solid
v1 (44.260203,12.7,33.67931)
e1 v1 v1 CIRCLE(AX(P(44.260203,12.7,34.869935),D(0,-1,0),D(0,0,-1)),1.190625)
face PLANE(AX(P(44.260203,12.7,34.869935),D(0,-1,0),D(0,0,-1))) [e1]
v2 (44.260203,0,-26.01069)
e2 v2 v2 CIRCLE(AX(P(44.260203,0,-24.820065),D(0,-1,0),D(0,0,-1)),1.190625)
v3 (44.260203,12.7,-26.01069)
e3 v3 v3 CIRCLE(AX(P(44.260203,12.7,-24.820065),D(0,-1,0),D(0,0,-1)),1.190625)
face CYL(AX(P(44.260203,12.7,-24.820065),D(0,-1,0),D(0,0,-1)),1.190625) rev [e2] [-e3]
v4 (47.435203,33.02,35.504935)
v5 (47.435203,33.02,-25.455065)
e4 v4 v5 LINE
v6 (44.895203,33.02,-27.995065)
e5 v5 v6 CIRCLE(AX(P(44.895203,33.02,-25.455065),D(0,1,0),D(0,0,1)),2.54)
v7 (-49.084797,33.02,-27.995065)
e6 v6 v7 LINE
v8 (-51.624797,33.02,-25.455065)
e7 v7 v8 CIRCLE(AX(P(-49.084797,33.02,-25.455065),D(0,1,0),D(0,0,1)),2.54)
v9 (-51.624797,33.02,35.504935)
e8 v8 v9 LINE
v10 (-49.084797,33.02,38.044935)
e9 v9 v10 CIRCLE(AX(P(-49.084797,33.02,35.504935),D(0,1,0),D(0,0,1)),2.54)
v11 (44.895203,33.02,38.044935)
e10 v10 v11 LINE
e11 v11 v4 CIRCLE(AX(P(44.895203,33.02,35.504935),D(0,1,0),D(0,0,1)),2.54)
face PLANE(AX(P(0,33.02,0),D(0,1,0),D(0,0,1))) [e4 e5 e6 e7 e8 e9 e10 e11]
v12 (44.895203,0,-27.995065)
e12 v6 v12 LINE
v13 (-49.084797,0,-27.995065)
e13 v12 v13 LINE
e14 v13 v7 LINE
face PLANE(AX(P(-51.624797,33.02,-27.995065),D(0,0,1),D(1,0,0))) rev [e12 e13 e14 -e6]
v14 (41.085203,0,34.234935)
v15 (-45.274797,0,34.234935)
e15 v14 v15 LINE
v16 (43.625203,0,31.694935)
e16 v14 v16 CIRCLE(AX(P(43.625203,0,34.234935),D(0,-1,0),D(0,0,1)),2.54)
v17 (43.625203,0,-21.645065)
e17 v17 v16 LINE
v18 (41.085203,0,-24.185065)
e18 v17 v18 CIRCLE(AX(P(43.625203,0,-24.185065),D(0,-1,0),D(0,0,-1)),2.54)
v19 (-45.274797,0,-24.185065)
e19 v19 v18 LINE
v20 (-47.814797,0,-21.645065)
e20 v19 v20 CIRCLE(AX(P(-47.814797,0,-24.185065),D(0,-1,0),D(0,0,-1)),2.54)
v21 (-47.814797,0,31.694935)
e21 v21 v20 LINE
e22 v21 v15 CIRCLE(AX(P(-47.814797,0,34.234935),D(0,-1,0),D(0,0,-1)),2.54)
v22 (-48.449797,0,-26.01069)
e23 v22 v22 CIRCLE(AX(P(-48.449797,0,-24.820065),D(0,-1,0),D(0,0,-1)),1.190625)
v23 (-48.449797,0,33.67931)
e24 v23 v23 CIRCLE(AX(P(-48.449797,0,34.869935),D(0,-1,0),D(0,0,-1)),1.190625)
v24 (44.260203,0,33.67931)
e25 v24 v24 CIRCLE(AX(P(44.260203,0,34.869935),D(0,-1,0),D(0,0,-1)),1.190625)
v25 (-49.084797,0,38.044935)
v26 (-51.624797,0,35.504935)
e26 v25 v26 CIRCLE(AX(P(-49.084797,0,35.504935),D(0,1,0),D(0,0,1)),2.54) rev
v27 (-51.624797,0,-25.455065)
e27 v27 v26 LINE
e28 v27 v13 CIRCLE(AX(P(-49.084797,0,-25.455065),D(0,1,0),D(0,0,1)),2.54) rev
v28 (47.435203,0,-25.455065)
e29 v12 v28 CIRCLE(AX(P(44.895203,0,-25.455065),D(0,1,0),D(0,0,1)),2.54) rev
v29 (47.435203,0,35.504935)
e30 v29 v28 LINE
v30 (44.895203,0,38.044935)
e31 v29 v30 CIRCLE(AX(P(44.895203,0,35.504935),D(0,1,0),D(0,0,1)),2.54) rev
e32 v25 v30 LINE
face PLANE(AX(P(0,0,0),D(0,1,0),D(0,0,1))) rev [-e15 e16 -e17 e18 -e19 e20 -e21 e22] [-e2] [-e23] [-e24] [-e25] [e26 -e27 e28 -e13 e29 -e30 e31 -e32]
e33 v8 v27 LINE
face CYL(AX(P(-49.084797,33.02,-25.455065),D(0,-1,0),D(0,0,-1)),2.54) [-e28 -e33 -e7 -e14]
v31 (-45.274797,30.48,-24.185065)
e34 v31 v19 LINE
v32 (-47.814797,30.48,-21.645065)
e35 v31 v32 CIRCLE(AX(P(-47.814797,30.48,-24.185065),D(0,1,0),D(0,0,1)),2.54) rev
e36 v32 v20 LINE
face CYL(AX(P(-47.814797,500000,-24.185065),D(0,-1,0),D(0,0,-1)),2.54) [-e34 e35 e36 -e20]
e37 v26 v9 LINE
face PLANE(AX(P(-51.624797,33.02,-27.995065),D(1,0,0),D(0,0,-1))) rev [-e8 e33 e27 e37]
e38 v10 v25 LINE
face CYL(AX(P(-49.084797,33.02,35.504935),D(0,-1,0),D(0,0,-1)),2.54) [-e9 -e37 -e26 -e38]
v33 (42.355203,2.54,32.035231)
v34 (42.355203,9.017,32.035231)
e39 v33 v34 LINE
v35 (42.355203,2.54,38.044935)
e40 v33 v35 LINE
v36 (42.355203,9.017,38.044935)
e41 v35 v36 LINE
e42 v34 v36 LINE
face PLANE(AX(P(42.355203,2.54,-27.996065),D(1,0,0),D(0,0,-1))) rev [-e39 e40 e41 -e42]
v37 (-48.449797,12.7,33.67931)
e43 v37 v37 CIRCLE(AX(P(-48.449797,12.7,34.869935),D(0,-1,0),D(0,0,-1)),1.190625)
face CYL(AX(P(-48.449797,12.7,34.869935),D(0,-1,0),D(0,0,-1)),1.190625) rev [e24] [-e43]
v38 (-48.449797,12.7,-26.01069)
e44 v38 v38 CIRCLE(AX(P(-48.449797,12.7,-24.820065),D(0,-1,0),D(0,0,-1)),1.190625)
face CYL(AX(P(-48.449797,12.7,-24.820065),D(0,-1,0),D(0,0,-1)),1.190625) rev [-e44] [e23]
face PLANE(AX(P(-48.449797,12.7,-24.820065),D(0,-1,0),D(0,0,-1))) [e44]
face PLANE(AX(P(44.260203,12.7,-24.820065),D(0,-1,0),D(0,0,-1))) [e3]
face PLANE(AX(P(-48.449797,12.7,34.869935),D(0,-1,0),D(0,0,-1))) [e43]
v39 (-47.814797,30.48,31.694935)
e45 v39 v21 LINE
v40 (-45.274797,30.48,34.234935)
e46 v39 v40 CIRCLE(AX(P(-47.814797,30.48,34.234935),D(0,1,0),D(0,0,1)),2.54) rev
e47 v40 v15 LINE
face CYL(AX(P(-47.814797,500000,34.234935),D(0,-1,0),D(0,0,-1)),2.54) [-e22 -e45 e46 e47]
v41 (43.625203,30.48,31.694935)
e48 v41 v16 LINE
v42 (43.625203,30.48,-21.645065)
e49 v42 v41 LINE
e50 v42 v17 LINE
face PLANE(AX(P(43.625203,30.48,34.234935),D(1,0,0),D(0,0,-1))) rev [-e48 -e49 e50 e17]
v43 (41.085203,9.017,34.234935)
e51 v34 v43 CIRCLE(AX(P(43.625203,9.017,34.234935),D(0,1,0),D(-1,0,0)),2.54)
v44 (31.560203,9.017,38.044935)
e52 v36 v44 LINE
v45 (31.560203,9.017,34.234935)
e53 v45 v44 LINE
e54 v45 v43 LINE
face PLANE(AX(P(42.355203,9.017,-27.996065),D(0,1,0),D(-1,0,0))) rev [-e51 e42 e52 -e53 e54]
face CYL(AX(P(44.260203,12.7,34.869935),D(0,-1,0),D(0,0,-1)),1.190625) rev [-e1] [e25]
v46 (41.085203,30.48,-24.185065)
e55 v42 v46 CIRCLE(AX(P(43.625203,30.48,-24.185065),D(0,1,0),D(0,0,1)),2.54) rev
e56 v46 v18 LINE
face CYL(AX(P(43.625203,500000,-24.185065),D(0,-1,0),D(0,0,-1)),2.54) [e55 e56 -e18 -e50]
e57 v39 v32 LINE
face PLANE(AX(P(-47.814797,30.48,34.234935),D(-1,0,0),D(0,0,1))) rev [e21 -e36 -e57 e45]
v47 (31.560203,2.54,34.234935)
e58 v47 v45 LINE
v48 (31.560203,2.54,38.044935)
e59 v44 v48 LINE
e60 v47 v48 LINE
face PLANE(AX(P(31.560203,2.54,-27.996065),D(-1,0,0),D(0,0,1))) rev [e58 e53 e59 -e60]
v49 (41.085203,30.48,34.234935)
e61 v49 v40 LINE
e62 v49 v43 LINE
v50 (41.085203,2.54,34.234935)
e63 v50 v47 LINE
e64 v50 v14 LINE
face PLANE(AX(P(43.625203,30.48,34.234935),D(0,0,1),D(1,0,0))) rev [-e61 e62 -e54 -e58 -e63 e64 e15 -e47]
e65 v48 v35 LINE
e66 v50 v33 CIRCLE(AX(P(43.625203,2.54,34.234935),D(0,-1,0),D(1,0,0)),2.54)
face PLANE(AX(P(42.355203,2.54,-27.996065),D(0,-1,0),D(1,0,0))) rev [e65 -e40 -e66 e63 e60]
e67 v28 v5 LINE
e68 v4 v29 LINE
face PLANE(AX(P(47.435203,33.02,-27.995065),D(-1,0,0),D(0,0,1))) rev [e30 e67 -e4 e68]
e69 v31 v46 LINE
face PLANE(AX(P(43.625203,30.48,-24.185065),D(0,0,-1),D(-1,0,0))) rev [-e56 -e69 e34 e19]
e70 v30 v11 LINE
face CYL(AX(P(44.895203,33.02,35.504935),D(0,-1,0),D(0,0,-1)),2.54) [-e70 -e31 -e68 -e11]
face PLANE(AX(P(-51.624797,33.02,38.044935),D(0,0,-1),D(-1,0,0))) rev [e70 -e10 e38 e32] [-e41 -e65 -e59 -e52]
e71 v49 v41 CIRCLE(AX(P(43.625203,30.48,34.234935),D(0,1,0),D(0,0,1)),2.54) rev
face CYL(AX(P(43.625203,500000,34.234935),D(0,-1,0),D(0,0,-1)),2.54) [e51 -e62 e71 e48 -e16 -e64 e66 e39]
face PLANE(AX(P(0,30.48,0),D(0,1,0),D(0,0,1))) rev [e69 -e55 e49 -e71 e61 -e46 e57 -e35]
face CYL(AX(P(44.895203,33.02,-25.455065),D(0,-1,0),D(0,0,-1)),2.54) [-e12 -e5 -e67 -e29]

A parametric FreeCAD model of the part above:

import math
import FreeCAD as App
import Part
import Sketcher
Q = App.Units.Quantity


def edges_at(feature, points):
    """Names of the edges that pass closest to the given points."""
    edges = feature.Shape.Edges
    near = lambda p: min(range(len(edges)), key=lambda i: edges[i].distToShape(Part.Vertex(*p))[0])
    return sorted({f"Edge{near(p) + 1}" for p in points})

doc = App.newDocument("Part")
body = doc.addObject("PartDesign::Body", "Body")

sketch1 = body.newObject("Sketcher::SketchObject", "Sketch")
sketch1.AttachmentSupport = (doc.getObject("XZ_Plane"), [""])
sketch1.MapMode = "FlatFace"
sketch1.addGeometry([
    Part.LineSegment(App.Vector(-51.624797, -27.995065, 0), App.Vector(-51.624797, 38.044935, 0)),
    Part.LineSegment(App.Vector(-51.624797, 38.044935, 0), App.Vector(47.435203, 38.044935, 0)),
    Part.LineSegment(App.Vector(47.435203, 38.044935, 0), App.Vector(47.435203, -27.995065, 0)),
    Part.LineSegment(App.Vector(47.435203, -27.995065, 0), App.Vector(-51.624797, -27.995065, 0)),
], False)
sketch1.addConstraint([
    Sketcher.Constraint("Coincident", 0, 2, 1, 1),
    Sketcher.Constraint("Coincident", 1, 2, 2, 1),
    Sketcher.Constraint("Coincident", 2, 2, 3, 1),
    Sketcher.Constraint("Coincident", 3, 2, 0, 1),
    Sketcher.Constraint("Vertical", 0),
    Sketcher.Constraint("Horizontal", 1),
    Sketcher.Constraint("Vertical", 2),
    Sketcher.Constraint("Horizontal", 3),
    Sketcher.Constraint("DistanceX", 1, 1, 1, 2, Q("3.9 in")),
    Sketcher.Constraint("DistanceY", 0, 1, 0, 2, Q("2.6 in")),
    Sketcher.Constraint("DistanceX", 0, 2, -1, 1, 51.624797),
    Sketcher.Constraint("DistanceY", -1, 1, 0, 2, 38.044935),
])
pad1 = body.newObject("PartDesign::Pad", "Pad")
pad1.Profile = sketch1
pad1.Length = Q("1.3 in")
pad1.Reversed = True
doc.recompute()

fillet = body.newObject("PartDesign::Fillet", "Fillet")
fillet.Base = (pad1, edges_at(pad1, [
    (-51.625, 16.51, -27.995),
    (47.435, 16.51, -27.995),
    (47.435, 16.51, 38.045),
    (-51.625, 16.51, 38.045),
]))
fillet.Radius = Q("0.1 in")

sketch2 = body.newObject("Sketcher::SketchObject", "Sketch001")
sketch2.AttachmentSupport = (doc.getObject("XZ_Plane"), [""])
sketch2.MapMode = "FlatFace"
sketch2.addGeometry([
    Part.LineSegment(App.Vector(-47.814797, 34.234935, 0), App.Vector(-47.814797, -24.185065, 0)),
    Part.LineSegment(App.Vector(-47.814797, -24.185065, 0), App.Vector(43.625203, -24.185065, 0)),
    Part.LineSegment(App.Vector(43.625203, -24.185065, 0), App.Vector(43.625203, 34.234935, 0)),
    Part.LineSegment(App.Vector(43.625203, 34.234935, 0), App.Vector(-47.814797, 34.234935, 0)),
], False)
sketch2.addConstraint([
    Sketcher.Constraint("Coincident", 0, 2, 1, 1),
    Sketcher.Constraint("Coincident", 1, 2, 2, 1),
    Sketcher.Constraint("Coincident", 2, 2, 3, 1),
    Sketcher.Constraint("Coincident", 3, 2, 0, 1),
    Sketcher.Constraint("Vertical", 0),
    Sketcher.Constraint("Horizontal", 1),
    Sketcher.Constraint("Vertical", 2),
    Sketcher.Constraint("Horizontal", 3),
    Sketcher.Constraint("DistanceX", 1, 1, 1, 2, Q("3.6 in")),
    Sketcher.Constraint("DistanceY", 0, 2, 0, 1, Q("2.3 in")),
    Sketcher.Constraint("DistanceX", 0, 2, -1, 1, 47.814797),
    Sketcher.Constraint("DistanceY", 0, 2, -1, 1, 24.185065),
])
pocket1 = body.newObject("PartDesign::Pocket", "Pocket")
pocket1.Profile = sketch2
pocket1.Length = Q("1.2 in")

sketch3 = body.newObject("Sketcher::SketchObject", "Sketch002")
sketch3.AttachmentSupport = (doc.getObject("XZ_Plane"), [""])
sketch3.MapMode = "FlatFace"
sketch3.addGeometry([
    Part.LineSegment(App.Vector(43.625203, 34.234935, 0), App.Vector(41.085203, 34.234935, 0)),
    Part.ArcOfCircle(Part.Circle(App.Vector(43.625203, 34.234935, 0), App.Vector(0, 0, 1), 2.54), math.radians(-180), math.radians(-90)),
    Part.LineSegment(App.Vector(43.625203, 31.694935, 0), App.Vector(43.625203, 34.234935, 0)),
], False)
sketch3.addConstraint([
    Sketcher.Constraint("Coincident", 0, 2, 1, 1),
    Sketcher.Constraint("Coincident", 1, 2, 2, 1),
    Sketcher.Constraint("Coincident", 2, 2, 0, 1),
    Sketcher.Constraint("Horizontal", 0),
    Sketcher.Constraint("Vertical", 2),
    Sketcher.Constraint("Coincident", 2, 2, 1, 3),
    Sketcher.Constraint("Radius", 1, Q("0.1 in")),
    Sketcher.Constraint("DistanceX", -1, 1, 1, 3, 43.625203),
    Sketcher.Constraint("DistanceY", -1, 1, 1, 3, 34.234935),
])
pad2 = body.newObject("PartDesign::Pad", "Pad001")
pad2.Profile = sketch3
pad2.Type = "UpToFirst"
pad2.Reversed = True

sketch4 = body.newObject("Sketcher::SketchObject", "Sketch003")
sketch4.AttachmentSupport = (doc.getObject("XZ_Plane"), [""])
sketch4.MapMode = "FlatFace"
sketch4.addGeometry([
    Part.LineSegment(App.Vector(-45.274797, 34.234935, 0), App.Vector(-47.814797, 34.234935, 0)),
    Part.LineSegment(App.Vector(-47.814797, 34.234935, 0), App.Vector(-47.814797, 31.694935, 0)),
    Part.ArcOfCircle(Part.Circle(App.Vector(-47.814797, 34.234935, 0), App.Vector(0, 0, 1), 2.54), math.radians(-90), math.radians(0)),
], False)
sketch4.addConstraint([
    Sketcher.Constraint("Coincident", 0, 2, 1, 1),
    Sketcher.Constraint("Coincident", 1, 2, 2, 1),
    Sketcher.Constraint("Coincident", 2, 2, 0, 1),
    Sketcher.Constraint("Horizontal", 0),
    Sketcher.Constraint("Vertical", 1),
    Sketcher.Constraint("Coincident", 0, 2, 2, 3),
    Sketcher.Constraint("Radius", 2, Q("0.1 in")),
    Sketcher.Constraint("DistanceX", 2, 3, -1, 1, 47.814797),
    Sketcher.Constraint("DistanceY", -1, 1, 2, 3, 34.234935),
])
pad3 = body.newObject("PartDesign::Pad", "Pad002")
pad3.Profile = sketch4
pad3.Type = "UpToFirst"
pad3.Reversed = True

sketch5 = body.newObject("Sketcher::SketchObject", "Sketch004")
sketch5.AttachmentSupport = (doc.getObject("XZ_Plane"), [""])
sketch5.MapMode = "FlatFace"
sketch5.addGeometry([
    Part.LineSegment(App.Vector(-47.814797, -21.645065, 0), App.Vector(-47.814797, -24.185065, 0)),
    Part.LineSegment(App.Vector(-47.814797, -24.185065, 0), App.Vector(-45.274797, -24.185065, 0)),
    Part.ArcOfCircle(Part.Circle(App.Vector(-47.814797, -24.185065, 0), App.Vector(0, 0, 1), 2.54), math.radians(0), math.radians(90)),
], False)
sketch5.addConstraint([
    Sketcher.Constraint("Coincident", 0, 2, 1, 1),
    Sketcher.Constraint("Coincident", 1, 2, 2, 1),
    Sketcher.Constraint("Coincident", 2, 2, 0, 1),
    Sketcher.Constraint("Vertical", 0),
    Sketcher.Constraint("Horizontal", 1),
    Sketcher.Constraint("Coincident", 0, 2, 2, 3),
    Sketcher.Constraint("Radius", 2, Q("0.1 in")),
    Sketcher.Constraint("DistanceX", 2, 3, -1, 1, 47.814797),
    Sketcher.Constraint("DistanceY", 2, 3, -1, 1, 24.185065),
])
pad4 = body.newObject("PartDesign::Pad", "Pad003")
pad4.Profile = sketch5
pad4.Type = "UpToFirst"
pad4.Reversed = True

sketch6 = body.newObject("Sketcher::SketchObject", "Sketch005")
sketch6.AttachmentSupport = (doc.getObject("XZ_Plane"), [""])
sketch6.MapMode = "FlatFace"
sketch6.addGeometry([
    Part.LineSegment(App.Vector(41.085203, -24.185065, 0), App.Vector(43.625203, -24.185065, 0)),
    Part.LineSegment(App.Vector(43.625203, -24.185065, 0), App.Vector(43.625203, -21.645065, 0)),
    Part.ArcOfCircle(Part.Circle(App.Vector(43.625203, -24.185065, 0), App.Vector(0, 0, 1), 2.54), math.radians(90), math.radians(180)),
], False)
sketch6.addConstraint([
    Sketcher.Constraint("Coincident", 0, 2, 1, 1),
    Sketcher.Constraint("Coincident", 1, 2, 2, 1),
    Sketcher.Constraint("Coincident", 2, 2, 0, 1),
    Sketcher.Constraint("Horizontal", 0),
    Sketcher.Constraint("Vertical", 1),
    Sketcher.Constraint("Coincident", 0, 2, 2, 3),
    Sketcher.Constraint("Radius", 2, Q("0.1 in")),
    Sketcher.Constraint("DistanceX", -1, 1, 2, 3, 43.625203),
    Sketcher.Constraint("DistanceY", 2, 3, -1, 1, 24.185065),
])
pad5 = body.newObject("PartDesign::Pad", "Pad004")
pad5.Profile = sketch6
pad5.Type = "UpToFirst"
pad5.Reversed = True

sketch7 = body.newObject("Sketcher::SketchObject", "Sketch006")
sketch7.AttachmentSupport = (doc.getObject("XZ_Plane"), [""])
sketch7.MapMode = "FlatFace"
sketch7.addGeometry([
    Part.Circle(App.Vector(44.260203, 34.869935, 0), App.Vector(0, 0, 1), 1.190625),
    Part.Circle(App.Vector(44.260203, -24.820065, 0), App.Vector(0, 0, 1), 1.190625),
    Part.Circle(App.Vector(-48.449797, 34.869935, 0), App.Vector(0, 0, 1), 1.190625),
    Part.Circle(App.Vector(-48.449797, -24.820065, 0), App.Vector(0, 0, 1), 1.190625),
], False)
sketch7.addConstraint([
    Sketcher.Constraint("Equal", 0, 1),
    Sketcher.Constraint("Equal", 1, 2),
    Sketcher.Constraint("Equal", 2, 3),
    Sketcher.Constraint("Horizontal", 0, 3, 2, 3),
    Sketcher.Constraint("Horizontal", 1, 3, 3, 3),
    Sketcher.Constraint("Vertical", 0, 3, 1, 3),
    Sketcher.Constraint("Vertical", 2, 3, 3, 3),
    Sketcher.Constraint("Diameter", 0, Q("0.09375 in")),
    Sketcher.Constraint("DistanceY", 1, 3, 0, 3, Q("2.35 in")),
    Sketcher.Constraint("DistanceX", 2, 3, 0, 3, Q("3.65 in")),
    Sketcher.Constraint("DistanceX", -1, 1, 0, 3, 44.260203),
    Sketcher.Constraint("DistanceY", -1, 1, 0, 3, 34.869935),
])
pocket2 = body.newObject("PartDesign::Pocket", "Pocket001")
pocket2.Profile = sketch7
pocket2.Length = Q("0.5 in")

sketch8 = body.newObject("Sketcher::SketchObject", "Sketch007")
sketch8.AttachmentSupport = (doc.getObject("XY_Plane"), [""])
sketch8.MapMode = "FlatFace"
sketch8.AttachmentOffset = App.Placement(App.Vector(0, 0, 38.044935), App.Rotation())
sketch8.addGeometry([
    Part.LineSegment(App.Vector(31.560203, 9.017, 0), App.Vector(31.560203, 2.54, 0)),
    Part.LineSegment(App.Vector(31.560203, 2.54, 0), App.Vector(42.355203, 2.54, 0)),
    Part.LineSegment(App.Vector(42.355203, 2.54, 0), App.Vector(42.355203, 9.017, 0)),
    Part.LineSegment(App.Vector(42.355203, 9.017, 0), App.Vector(31.560203, 9.017, 0)),
], False)
sketch8.addConstraint([
    Sketcher.Constraint("Coincident", 0, 2, 1, 1),
    Sketcher.Constraint("Coincident", 1, 2, 2, 1),
    Sketcher.Constraint("Coincident", 2, 2, 3, 1),
    Sketcher.Constraint("Coincident", 3, 2, 0, 1),
    Sketcher.Constraint("Vertical", 0),
    Sketcher.Constraint("Horizontal", 1),
    Sketcher.Constraint("Vertical", 2),
    Sketcher.Constraint("Horizontal", 3),
    Sketcher.Constraint("DistanceY", -1, 1, 0, 2, Q("0.1 in")),
    Sketcher.Constraint("DistanceX", 1, 1, 1, 2, Q("0.425 in")),
    Sketcher.Constraint("DistanceY", 0, 2, 0, 1, Q("0.255 in")),
    Sketcher.Constraint("DistanceX", -1, 1, 0, 2, 31.560203),
])
pocket3 = body.newObject("PartDesign::Pocket", "Pocket002")
pocket3.Profile = sketch8
pocket3.Length = 6.009705

doc.recompute()
